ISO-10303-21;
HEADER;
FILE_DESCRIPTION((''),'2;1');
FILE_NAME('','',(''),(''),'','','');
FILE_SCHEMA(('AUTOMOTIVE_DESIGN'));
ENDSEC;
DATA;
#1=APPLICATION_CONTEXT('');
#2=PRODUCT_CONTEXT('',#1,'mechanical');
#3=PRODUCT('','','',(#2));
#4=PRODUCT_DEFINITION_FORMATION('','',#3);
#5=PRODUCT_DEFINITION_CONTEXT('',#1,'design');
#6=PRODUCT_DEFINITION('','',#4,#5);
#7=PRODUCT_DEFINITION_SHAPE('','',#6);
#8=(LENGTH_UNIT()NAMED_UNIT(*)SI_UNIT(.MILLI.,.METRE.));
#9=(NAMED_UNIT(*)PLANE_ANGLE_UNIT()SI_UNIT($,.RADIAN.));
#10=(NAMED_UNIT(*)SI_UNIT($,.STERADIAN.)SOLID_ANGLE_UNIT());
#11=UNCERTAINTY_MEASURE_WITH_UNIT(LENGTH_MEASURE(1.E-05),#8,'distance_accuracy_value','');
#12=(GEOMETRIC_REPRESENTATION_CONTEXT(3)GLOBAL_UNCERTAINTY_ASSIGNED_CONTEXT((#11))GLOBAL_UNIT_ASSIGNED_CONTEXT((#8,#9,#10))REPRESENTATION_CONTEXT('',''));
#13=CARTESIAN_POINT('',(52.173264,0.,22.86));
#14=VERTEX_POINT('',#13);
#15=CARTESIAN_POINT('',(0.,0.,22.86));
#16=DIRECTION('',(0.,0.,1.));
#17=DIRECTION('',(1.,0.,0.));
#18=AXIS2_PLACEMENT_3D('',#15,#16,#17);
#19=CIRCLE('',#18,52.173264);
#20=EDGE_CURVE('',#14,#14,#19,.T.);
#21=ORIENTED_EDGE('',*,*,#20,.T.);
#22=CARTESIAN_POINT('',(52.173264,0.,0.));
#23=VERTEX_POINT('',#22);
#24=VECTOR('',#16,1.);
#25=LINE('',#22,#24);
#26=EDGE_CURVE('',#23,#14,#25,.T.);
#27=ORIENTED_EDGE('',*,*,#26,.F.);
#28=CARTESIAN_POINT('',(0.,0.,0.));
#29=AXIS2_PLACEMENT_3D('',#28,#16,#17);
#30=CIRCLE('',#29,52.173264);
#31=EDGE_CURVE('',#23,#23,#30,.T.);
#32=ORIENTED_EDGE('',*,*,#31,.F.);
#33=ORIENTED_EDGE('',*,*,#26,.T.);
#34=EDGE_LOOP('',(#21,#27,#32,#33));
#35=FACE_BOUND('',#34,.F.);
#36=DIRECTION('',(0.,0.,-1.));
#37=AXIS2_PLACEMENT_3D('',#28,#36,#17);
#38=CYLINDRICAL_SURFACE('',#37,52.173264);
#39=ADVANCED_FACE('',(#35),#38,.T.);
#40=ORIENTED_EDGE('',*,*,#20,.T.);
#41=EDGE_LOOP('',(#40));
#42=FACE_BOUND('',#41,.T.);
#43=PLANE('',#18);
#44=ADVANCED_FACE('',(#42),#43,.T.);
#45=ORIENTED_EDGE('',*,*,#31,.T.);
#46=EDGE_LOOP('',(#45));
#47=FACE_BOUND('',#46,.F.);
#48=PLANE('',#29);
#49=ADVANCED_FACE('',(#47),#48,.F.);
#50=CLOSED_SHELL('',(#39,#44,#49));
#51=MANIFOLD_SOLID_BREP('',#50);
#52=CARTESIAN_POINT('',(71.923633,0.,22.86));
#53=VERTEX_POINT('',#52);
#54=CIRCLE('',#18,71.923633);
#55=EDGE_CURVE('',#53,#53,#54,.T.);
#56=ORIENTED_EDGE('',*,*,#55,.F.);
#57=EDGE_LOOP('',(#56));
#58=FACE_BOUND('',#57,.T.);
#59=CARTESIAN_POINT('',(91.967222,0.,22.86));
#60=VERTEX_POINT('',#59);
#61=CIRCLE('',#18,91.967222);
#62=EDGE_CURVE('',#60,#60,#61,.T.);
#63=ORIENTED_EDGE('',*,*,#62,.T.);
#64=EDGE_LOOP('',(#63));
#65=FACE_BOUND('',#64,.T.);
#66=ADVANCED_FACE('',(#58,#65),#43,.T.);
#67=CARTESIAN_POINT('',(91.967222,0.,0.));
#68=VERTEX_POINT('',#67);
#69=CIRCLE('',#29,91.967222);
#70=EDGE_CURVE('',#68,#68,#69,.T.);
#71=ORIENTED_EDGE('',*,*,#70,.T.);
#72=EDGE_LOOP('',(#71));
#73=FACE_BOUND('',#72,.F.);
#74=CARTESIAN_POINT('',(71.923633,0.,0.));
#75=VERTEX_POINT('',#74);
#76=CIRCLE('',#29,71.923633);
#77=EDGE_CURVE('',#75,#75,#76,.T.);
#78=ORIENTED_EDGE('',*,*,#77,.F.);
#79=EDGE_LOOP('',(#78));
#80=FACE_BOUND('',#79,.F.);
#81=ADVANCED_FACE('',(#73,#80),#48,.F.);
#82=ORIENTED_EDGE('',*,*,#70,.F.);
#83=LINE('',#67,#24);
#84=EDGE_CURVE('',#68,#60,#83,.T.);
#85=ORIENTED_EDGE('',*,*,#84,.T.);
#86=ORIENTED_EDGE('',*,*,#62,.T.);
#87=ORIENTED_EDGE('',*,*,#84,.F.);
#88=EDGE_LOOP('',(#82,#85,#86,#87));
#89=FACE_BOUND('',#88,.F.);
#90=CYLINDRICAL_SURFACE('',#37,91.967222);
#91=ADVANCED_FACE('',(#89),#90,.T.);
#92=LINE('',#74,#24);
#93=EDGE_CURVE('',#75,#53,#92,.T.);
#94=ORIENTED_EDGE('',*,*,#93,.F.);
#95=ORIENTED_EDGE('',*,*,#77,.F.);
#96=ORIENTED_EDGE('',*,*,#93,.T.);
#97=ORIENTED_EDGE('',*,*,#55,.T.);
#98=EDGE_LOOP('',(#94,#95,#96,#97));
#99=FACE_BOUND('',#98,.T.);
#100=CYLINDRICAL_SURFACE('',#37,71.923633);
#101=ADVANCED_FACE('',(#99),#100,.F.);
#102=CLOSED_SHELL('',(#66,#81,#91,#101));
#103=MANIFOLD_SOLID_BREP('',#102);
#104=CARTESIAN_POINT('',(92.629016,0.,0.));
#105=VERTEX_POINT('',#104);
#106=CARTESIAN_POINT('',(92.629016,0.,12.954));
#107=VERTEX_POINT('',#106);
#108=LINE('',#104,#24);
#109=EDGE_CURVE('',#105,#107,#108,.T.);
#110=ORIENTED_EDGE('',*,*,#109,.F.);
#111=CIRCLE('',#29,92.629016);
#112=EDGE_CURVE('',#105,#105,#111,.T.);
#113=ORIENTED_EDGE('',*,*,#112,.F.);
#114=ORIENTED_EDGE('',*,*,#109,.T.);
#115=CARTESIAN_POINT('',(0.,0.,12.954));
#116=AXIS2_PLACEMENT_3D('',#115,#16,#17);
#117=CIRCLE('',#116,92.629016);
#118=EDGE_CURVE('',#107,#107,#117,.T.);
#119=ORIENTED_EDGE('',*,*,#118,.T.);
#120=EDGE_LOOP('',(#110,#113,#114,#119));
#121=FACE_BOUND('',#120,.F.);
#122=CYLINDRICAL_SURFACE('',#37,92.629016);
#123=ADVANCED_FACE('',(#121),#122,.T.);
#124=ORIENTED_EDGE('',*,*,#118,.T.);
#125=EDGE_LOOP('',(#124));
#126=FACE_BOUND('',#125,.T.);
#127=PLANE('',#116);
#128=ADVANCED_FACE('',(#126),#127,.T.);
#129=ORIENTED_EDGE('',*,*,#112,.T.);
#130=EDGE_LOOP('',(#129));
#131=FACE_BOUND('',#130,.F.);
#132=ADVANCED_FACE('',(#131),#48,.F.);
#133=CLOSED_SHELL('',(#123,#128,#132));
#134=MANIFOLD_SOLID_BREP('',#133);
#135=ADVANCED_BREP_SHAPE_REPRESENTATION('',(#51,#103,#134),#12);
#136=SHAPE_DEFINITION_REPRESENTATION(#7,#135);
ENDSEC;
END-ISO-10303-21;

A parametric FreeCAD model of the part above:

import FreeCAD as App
import Part
import Sketcher

doc = App.newDocument("Part")
params = doc.addObject("Spreadsheet::Sheet", "Params")
for row, (alias, value) in enumerate([
    ("pad1_length", "0.9 in"),
    ("pad2_length", "0.51 in"),
], start=1):
    params.set(f"A{row}", alias)
    params.set(f"B{row}", "=" + value)
    params.setAlias(f"B{row}", alias)

body = doc.addObject("PartDesign::Body", "Body")
body.AllowCompound = True

# Sketch on XY plane
sketch1 = body.newObject("Sketcher::SketchObject", "Sketch")
sketch1.AttachmentSupport = (doc.getObject("XY_Plane"), [""])
sketch1.MapMode = "FlatFace"
sketch1.addGeometry(Part.Circle(App.Vector(0, 0, 0), App.Vector(0, 0, 1), 92), False)
sketch1.addGeometry(Part.Circle(App.Vector(0, 0, 0), App.Vector(0, 0, 1), 72), False)
sketch1.addGeometry(Part.Circle(App.Vector(0, 0, 0), App.Vector(0, 0, 1), 52), False)
sketch1.addConstraint(Sketcher.Constraint("Coincident", 0, 3, -1, 1))
sketch1.addConstraint(Sketcher.Constraint("Coincident", 1, 3, -1, 1))
sketch1.addConstraint(Sketcher.Constraint("Coincident", 2, 3, -1, 1))
sketch1.addConstraint(Sketcher.Constraint("Diameter", 2, 104.346528))
sketch1.addConstraint(Sketcher.Constraint("Diameter", 0, 183.934444))
sketch1.addConstraint(Sketcher.Constraint("Diameter", 1, 143.847266))
pad1 = body.newObject("PartDesign::Pad", "Pad")
pad1.Profile = sketch1
pad1.setExpression("Length", "Params.pad1_length")
body2 = doc.addObject("PartDesign::Body", "Body001")

# Sketch on XY plane
sketch2 = body2.newObject("Sketcher::SketchObject", "Sketch001")
sketch2.AttachmentSupport = (doc.getObject("XY_Plane001"), [""])
sketch2.MapMode = "FlatFace"
sketch2.addGeometry(Part.Circle(App.Vector(0, 0, 0), App.Vector(0, 0, 1), 93), False)
sketch2.addConstraint(Sketcher.Constraint("Coincident", 0, 3, -1, 1))
sketch2.addConstraint(Sketcher.Constraint("Diameter", 0, 185.258032))
pad2 = body2.newObject("PartDesign::Pad", "Pad001")
pad2.Profile = sketch2
pad2.setExpression("Length", "Params.pad2_length")

doc.recompute()
